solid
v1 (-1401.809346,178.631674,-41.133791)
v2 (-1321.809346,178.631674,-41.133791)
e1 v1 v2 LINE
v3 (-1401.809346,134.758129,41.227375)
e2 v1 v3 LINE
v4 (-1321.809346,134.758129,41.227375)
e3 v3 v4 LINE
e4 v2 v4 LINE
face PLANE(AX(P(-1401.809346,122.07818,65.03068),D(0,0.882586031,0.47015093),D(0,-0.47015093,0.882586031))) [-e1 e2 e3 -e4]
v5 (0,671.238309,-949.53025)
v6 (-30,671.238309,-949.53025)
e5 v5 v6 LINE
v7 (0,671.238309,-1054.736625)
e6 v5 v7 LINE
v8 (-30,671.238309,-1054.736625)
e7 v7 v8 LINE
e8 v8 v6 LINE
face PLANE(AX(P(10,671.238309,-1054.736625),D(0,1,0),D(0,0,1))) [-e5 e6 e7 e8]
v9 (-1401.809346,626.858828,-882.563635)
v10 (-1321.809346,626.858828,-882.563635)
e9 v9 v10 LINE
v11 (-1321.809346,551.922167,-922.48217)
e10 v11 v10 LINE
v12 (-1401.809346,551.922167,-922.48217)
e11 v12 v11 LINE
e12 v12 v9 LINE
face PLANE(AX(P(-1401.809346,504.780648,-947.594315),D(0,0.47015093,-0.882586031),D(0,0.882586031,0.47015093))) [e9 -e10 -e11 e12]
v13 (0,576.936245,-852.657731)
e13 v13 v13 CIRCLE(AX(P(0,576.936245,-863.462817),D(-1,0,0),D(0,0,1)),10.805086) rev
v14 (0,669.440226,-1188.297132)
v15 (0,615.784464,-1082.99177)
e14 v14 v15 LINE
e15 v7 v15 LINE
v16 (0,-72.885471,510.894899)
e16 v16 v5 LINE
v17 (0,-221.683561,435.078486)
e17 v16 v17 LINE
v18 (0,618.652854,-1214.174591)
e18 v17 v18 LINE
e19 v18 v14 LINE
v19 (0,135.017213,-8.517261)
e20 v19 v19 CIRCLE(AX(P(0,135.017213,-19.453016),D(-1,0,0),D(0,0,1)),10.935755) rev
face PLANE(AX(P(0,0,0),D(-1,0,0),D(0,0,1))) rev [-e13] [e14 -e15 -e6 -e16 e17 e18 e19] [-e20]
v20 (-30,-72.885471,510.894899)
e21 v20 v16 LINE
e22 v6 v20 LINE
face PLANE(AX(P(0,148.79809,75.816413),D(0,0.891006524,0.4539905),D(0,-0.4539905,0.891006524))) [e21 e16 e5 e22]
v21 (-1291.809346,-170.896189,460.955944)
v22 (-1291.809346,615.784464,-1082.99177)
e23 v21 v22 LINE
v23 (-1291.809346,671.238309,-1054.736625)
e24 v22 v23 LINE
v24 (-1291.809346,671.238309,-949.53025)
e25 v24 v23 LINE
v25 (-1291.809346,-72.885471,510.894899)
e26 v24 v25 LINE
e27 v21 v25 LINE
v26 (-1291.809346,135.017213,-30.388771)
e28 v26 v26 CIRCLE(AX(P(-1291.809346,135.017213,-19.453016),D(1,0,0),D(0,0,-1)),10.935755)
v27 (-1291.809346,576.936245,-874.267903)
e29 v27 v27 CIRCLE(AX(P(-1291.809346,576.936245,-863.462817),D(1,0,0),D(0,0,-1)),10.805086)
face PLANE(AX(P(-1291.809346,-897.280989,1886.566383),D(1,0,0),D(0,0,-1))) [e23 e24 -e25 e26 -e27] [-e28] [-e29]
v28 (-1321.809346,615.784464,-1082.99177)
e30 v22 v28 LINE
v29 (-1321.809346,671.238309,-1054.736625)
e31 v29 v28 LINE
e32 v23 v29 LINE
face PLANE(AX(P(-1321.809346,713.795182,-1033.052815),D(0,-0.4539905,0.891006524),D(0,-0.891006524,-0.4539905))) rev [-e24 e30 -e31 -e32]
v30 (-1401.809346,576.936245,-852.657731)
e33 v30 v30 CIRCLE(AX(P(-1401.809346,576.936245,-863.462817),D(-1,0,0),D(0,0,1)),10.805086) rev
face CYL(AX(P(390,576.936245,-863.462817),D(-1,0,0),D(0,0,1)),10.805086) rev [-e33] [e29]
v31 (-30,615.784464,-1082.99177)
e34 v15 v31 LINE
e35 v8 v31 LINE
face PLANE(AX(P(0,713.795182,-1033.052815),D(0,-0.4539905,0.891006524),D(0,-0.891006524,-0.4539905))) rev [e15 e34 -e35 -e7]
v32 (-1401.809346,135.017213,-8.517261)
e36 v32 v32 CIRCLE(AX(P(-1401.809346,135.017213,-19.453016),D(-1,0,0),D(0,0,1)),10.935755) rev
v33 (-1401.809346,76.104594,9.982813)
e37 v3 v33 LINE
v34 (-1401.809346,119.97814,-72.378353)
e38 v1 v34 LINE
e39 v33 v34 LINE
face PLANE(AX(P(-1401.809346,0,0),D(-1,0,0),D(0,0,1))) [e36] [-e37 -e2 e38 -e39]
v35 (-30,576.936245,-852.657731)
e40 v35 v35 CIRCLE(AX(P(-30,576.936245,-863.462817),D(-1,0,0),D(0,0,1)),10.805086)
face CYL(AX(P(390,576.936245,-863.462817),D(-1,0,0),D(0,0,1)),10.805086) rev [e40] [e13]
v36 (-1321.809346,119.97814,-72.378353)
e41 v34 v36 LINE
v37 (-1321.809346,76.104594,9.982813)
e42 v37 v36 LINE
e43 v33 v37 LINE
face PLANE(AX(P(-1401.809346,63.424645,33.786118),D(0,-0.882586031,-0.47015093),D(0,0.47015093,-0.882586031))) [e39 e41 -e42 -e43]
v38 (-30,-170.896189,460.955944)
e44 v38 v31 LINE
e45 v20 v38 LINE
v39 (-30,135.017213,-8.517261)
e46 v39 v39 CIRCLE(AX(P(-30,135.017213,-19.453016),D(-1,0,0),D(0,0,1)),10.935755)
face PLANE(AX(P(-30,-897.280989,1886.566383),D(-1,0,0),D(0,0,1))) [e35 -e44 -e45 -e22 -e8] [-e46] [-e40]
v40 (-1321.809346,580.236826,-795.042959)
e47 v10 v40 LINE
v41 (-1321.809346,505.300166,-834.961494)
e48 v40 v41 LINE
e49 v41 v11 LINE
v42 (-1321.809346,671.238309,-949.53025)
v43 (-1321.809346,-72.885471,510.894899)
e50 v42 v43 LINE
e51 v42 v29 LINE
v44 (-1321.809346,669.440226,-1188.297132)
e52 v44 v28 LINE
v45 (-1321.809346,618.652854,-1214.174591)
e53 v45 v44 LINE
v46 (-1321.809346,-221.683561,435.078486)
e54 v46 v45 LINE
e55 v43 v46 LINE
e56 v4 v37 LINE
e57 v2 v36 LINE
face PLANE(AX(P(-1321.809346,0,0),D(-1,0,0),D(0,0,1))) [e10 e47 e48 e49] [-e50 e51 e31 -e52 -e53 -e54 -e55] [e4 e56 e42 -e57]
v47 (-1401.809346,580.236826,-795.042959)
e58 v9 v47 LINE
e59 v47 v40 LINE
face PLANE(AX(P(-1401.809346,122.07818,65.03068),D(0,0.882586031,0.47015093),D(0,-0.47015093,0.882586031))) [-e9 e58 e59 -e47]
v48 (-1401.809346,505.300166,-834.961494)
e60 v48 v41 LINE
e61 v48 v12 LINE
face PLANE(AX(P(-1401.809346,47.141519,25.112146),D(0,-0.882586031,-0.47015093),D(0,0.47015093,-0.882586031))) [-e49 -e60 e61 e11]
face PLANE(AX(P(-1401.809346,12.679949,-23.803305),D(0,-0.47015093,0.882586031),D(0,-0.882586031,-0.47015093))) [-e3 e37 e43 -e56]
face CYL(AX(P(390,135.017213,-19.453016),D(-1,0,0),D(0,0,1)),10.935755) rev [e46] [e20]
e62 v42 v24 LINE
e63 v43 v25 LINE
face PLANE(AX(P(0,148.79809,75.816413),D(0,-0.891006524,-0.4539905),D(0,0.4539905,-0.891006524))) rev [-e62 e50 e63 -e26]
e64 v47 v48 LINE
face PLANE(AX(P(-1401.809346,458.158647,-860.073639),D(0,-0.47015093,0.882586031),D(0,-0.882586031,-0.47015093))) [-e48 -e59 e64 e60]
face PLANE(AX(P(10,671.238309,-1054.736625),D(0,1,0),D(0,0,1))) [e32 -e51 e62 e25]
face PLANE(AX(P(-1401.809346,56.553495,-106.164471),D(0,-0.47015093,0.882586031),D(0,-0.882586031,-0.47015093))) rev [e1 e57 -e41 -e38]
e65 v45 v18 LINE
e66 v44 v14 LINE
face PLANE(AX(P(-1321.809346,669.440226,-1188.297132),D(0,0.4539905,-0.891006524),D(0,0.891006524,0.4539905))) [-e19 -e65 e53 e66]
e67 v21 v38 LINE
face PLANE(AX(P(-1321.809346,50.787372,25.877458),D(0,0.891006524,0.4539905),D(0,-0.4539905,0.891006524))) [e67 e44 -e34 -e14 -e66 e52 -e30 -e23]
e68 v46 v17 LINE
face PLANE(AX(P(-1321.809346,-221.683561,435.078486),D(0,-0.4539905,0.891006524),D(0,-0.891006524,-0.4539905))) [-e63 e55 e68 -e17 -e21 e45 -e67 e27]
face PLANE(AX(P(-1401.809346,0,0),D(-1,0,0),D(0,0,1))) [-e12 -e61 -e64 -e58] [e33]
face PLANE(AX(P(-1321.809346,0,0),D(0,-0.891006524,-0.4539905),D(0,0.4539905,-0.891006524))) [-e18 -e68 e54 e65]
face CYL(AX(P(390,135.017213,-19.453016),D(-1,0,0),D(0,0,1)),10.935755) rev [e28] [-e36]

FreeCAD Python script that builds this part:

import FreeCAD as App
import Part
import Sketcher
Q = App.Units.Quantity

doc = App.newDocument("Part")
body = doc.addObject("PartDesign::Body", "Body")

sketch1 = body.newObject("Sketcher::SketchObject", "Sketch")
sketch1.AttachmentSupport = (doc.getObject("YZ_Plane"), [""])
sketch1.MapMode = "FlatFace"
sketch1.addGeometry([
    Part.LineSegment(App.Vector(619, -1214, 0), App.Vector(669, -1188, 0)),
    Part.LineSegment(App.Vector(669, -1188, 0), App.Vector(-171, 461, 0)),
    Part.LineSegment(App.Vector(-171, 461, 0), App.Vector(-222, 435, 0)),
    Part.LineSegment(App.Vector(-222, 435, 0), App.Vector(619, -1214, 0)),
], False)
sketch1.addConstraint([
    Sketcher.Constraint("Coincident", 0, 2, 1, 1),
    Sketcher.Constraint("Coincident", 1, 2, 2, 1),
    Sketcher.Constraint("Coincident", 2, 2, 3, 1),
    Sketcher.Constraint("Coincident", 3, 2, 0, 1),
    Sketcher.Constraint("Perpendicular", 0, 1),
    Sketcher.Constraint("Perpendicular", 1, 2),
    Sketcher.Constraint("Perpendicular", 2, 3),
    Sketcher.Constraint("Angle", 0, Q("27 deg")),
    Sketcher.Constraint("Distance", 0, Q("57 mm")),
    Sketcher.Constraint("Distance", 1, Q("1851 mm")),
    Sketcher.Constraint("DistanceX", 1, 2, -1, 1, Q("170.896189 mm")),
    Sketcher.Constraint("DistanceY", 3, 2, -1, 1, Q("1214.174591 mm")),
])
pad1 = body.newObject("PartDesign::Pad", "Pad")
pad1.Profile = sketch1
pad1.Length = 1321.809346
pad1.Reversed = True

sketch2 = body.newObject("Sketcher::SketchObject", "Sketch001")
sketch2.Placement = App.Placement(App.Vector(0, 50.787372, 25.877458), App.Rotation(App.Vector(1, 0, 0), App.Vector(0, 0.4539905, -0.891006524), App.Vector(0, 0.891006524, 0.4539905), "ZXY"))
sketch2.addGeometry([
    Part.LineSegment(App.Vector(0, -488, 0), App.Vector(0, 1245, 0)),
    Part.LineSegment(App.Vector(0, 1245, 0), App.Vector(-68, 1245, 0)),
    Part.LineSegment(App.Vector(-68, 1245, 0), App.Vector(-68, -488, 0)),
    Part.LineSegment(App.Vector(-68, -488, 0), App.Vector(0, -488, 0)),
    Part.LineSegment(App.Vector(-1322, 1245, 0), App.Vector(-1322, -488, 0)),
    Part.LineSegment(App.Vector(-1322, -488, 0), App.Vector(-1254, -488, 0)),
    Part.LineSegment(App.Vector(-1254, -488, 0), App.Vector(-1254, 1245, 0)),
    Part.LineSegment(App.Vector(-1254, 1245, 0), App.Vector(-1322, 1245, 0)),
], False)
sketch2.addConstraint([
    Sketcher.Constraint("Coincident", 0, 2, 1, 1),
    Sketcher.Constraint("Coincident", 1, 2, 2, 1),
    Sketcher.Constraint("Coincident", 2, 2, 3, 1),
    Sketcher.Constraint("Coincident", 3, 2, 0, 1),
    Sketcher.Constraint("Coincident", 4, 2, 5, 1),
    Sketcher.Constraint("Coincident", 5, 2, 6, 1),
    Sketcher.Constraint("Coincident", 6, 2, 7, 1),
    Sketcher.Constraint("Coincident", 7, 2, 4, 1),
    Sketcher.Constraint("Vertical", 0),
    Sketcher.Constraint("Horizontal", 1),
    Sketcher.Constraint("Vertical", 2),
    Sketcher.Constraint("Horizontal", 3),
    Sketcher.Constraint("Vertical", 4),
    Sketcher.Constraint("Horizontal", 5),
    Sketcher.Constraint("Vertical", 6),
    Sketcher.Constraint("Horizontal", 7),
    Sketcher.Constraint("PointOnObject", 0, 2, -2),
    Sketcher.Constraint("Horizontal", 3, 2, 4, 2),
    Sketcher.Constraint("Horizontal", 1, 2, 6, 2),
    Sketcher.Constraint("Equal", 3, 5),
    Sketcher.Constraint("DistanceY", 2, 2, -1, 1, Q("488.3 mm")),
    Sketcher.Constraint("DistanceY", 0, 1, 0, 2, Q("1732.813029 mm")),
    Sketcher.Constraint("DistanceX", 1, 2, 1, 1, Q("67.842598 mm")),
    Sketcher.Constraint("DistanceX", 5, 2, -1, 1, Q("1253.966748 mm")),
])
pad2 = body.newObject("PartDesign::Pad", "Pad001")
pad2.Profile = sketch2
pad2.Length = 110

sketch3 = body.newObject("Sketcher::SketchObject", "Sketch002")
sketch3.AttachmentSupport = (doc.getObject("YZ_Plane"), [""])
sketch3.MapMode = "FlatFace"
sketch3.AttachmentOffset = App.Placement(App.Vector(0, 0, -1321.809346), App.Rotation())
sketch3.addGeometry([
    Part.LineSegment(App.Vector(580, -795, 0), App.Vector(627, -883, 0)),
    Part.LineSegment(App.Vector(627, -883, 0), App.Vector(552, -922, 0)),
    Part.LineSegment(App.Vector(552, -922, 0), App.Vector(505, -835, 0)),
    Part.LineSegment(App.Vector(505, -835, 0), App.Vector(580, -795, 0)),
    Part.LineSegment(App.Vector(135, 41, 0), App.Vector(179, -41, 0)),
    Part.LineSegment(App.Vector(179, -41, 0), App.Vector(120, -72, 0)),
    Part.LineSegment(App.Vector(120, -72, 0), App.Vector(76, 10, 0)),
    Part.LineSegment(App.Vector(76, 10, 0), App.Vector(135, 41, 0)),
], False)
sketch3.addConstraint([
    Sketcher.Constraint("Coincident", 0, 2, 1, 1),
    Sketcher.Constraint("Coincident", 1, 2, 2, 1),
    Sketcher.Constraint("Coincident", 2, 2, 3, 1),
    Sketcher.Constraint("Coincident", 3, 2, 0, 1),
    Sketcher.Constraint("Coincident", 4, 2, 5, 1),
    Sketcher.Constraint("Coincident", 5, 2, 6, 1),
    Sketcher.Constraint("Coincident", 6, 2, 7, 1),
    Sketcher.Constraint("Coincident", 7, 2, 4, 1),
    Sketcher.Constraint("Perpendicular", 0, 1),
    Sketcher.Constraint("Perpendicular", 1, 2),
    Sketcher.Constraint("Perpendicular", 2, 3),
    Sketcher.Constraint("Perpendicular", 3, 4),
    Sketcher.Constraint("Perpendicular", 4, 5),
    Sketcher.Constraint("Perpendicular", 5, 6),
    Sketcher.Constraint("Perpendicular", 6, 7),
    Sketcher.Constraint("DistanceX", 2, 2, 1, 2, Q("46.622002 mm")),
    Sketcher.Constraint("Distance", 5, Q("66.45645 mm")),
    Sketcher.Constraint("DistanceY", 1, 2, -1, 1, Q("922.48217 mm")),
    Sketcher.Constraint("DistanceY", 3, 2, -1, 1, Q("795.042959 mm")),
    Sketcher.Constraint("DistanceY", 4, 2, -1, 1, Q("41.133791 mm")),
    Sketcher.Constraint("DistanceX", -1, 1, 5, 2, Q("119.97814 mm")),
    Sketcher.Constraint("DistanceX", -1, 1, 7, 2, Q("134.758129 mm")),
    Sketcher.Constraint("DistanceX", 1, 2, 0, 2, Q("74.936661 mm")),
    Sketcher.Constraint("DistanceX", 4, 2, 3, 2, Q("401.605152 mm")),
])
pad3 = body.newObject("PartDesign::Pad", "Pad002")
pad3.Profile = sketch3
pad3.Length = 80
pad3.Reversed = True

sketch4 = body.newObject("Sketcher::SketchObject", "Sketch003")
sketch4.AttachmentSupport = (doc.getObject("YZ_Plane"), [""])
sketch4.MapMode = "FlatFace"
sketch4.addGeometry([
    Part.Circle(App.Vector(135, -19, 0), App.Vector(0, 0, 1), 11),
    Part.Circle(App.Vector(577, -863, 0), App.Vector(0, 0, 1), 11),
], False)
sketch4.addConstraint([
    Sketcher.Constraint("Diameter", 0, Q("21.87151 mm")),
    Sketcher.Constraint("Diameter", 1, Q("21.610172 mm")),
    Sketcher.Constraint("DistanceY", 1, 3, 0, 3, Q("844.009801 mm")),
    Sketcher.Constraint("DistanceX", 0, 3, 1, 3, Q("441.919032 mm")),
    Sketcher.Constraint("DistanceX", -1, 1, 0, 3, Q("135.017213 mm")),
    Sketcher.Constraint("DistanceY", 0, 3, -1, 1, Q("19.453016 mm")),
])
pocket1 = body.newObject("PartDesign::Pocket", "Pocket")
pocket1.Profile = sketch4
pocket1.Type = "ThroughAll"
pocket1.Midplane = True

sketch5 = body.newObject("Sketcher::SketchObject", "Sketch004")
sketch5.AttachmentSupport = (doc.getObject("YZ_Plane"), [""])
sketch5.MapMode = "FlatFace"
sketch5.addGeometry([
    Part.LineSegment(App.Vector(671, -1055, 0), App.Vector(714, -1033, 0)),
    Part.LineSegment(App.Vector(714, -1033, 0), App.Vector(671, -950, 0)),
    Part.LineSegment(App.Vector(671, -950, 0), App.Vector(671, -1055, 0)),
], False)
sketch5.addConstraint([
    Sketcher.Constraint("Coincident", 0, 2, 1, 1),
    Sketcher.Constraint("Coincident", 1, 2, 2, 1),
    Sketcher.Constraint("Coincident", 2, 2, 0, 1),
    Sketcher.Constraint("Vertical", 2),
    Sketcher.Constraint("Perpendicular", 0, 1),
    Sketcher.Constraint("Angle", 0, Q("27 deg")),
    Sketcher.Constraint("DistanceY", 2, 2, 2, 1, Q("105.206374 mm")),
    Sketcher.Constraint("DistanceX", -1, 1, 0, 2, Q("713.795182 mm")),
    Sketcher.Constraint("DistanceY", 1, 2, -1, 1, Q("949.53025 mm")),
])
pocket2 = body.newObject("PartDesign::Pocket", "Pocket001")
pocket2.Profile = sketch5
pocket2.Type = "ThroughAll"
pocket2.Midplane = True

sketch6 = body.newObject("Sketcher::SketchObject", "Sketch005")
sketch6.Placement = App.Placement(App.Vector(0, -221.683561, 435.078485), App.Rotation(App.Vector(1, 0, 0), App.Vector(0, 0.891006524, 0.4539905), App.Vector(0, -0.4539905, 0.891006524), "ZXY"))
sketch6.addGeometry([
    Part.LineSegment(App.Vector(-1292, 206, 0), App.Vector(-1292, 57, 0)),
    Part.LineSegment(App.Vector(-1292, 57, 0), App.Vector(-30, 57, 0)),
    Part.LineSegment(App.Vector(-30, 57, 0), App.Vector(-30, 206, 0)),
    Part.LineSegment(App.Vector(-30, 206, 0), App.Vector(-1292, 206, 0)),
], False)
sketch6.addConstraint([
    Sketcher.Constraint("Coincident", 0, 2, 1, 1),
    Sketcher.Constraint("Coincident", 1, 2, 2, 1),
    Sketcher.Constraint("Coincident", 2, 2, 3, 1),
    Sketcher.Constraint("Coincident", 3, 2, 0, 1),
    Sketcher.Constraint("Vertical", 0),
    Sketcher.Constraint("Horizontal", 1),
    Sketcher.Constraint("Vertical", 2),
    Sketcher.Constraint("Horizontal", 3),
    Sketcher.Constraint("DistanceY", -1, 1, 0, 2, Q("57 mm")),
    Sketcher.Constraint("DistanceX", 1, 2, -1, 1, Q("30 mm")),
    Sketcher.Constraint("DistanceX", 1, 1, 1, 2, Q("1261.809346 mm")),
    Sketcher.Constraint("DistanceY", 0, 2, 0, 1, Q("148.826585 mm")),
])
pocket3 = body.newObject("PartDesign::Pocket", "Pocket002")
pocket3.Profile = sketch6
pocket3.Type = "ThroughAll"
pocket3.Midplane = True

doc.recompute()
